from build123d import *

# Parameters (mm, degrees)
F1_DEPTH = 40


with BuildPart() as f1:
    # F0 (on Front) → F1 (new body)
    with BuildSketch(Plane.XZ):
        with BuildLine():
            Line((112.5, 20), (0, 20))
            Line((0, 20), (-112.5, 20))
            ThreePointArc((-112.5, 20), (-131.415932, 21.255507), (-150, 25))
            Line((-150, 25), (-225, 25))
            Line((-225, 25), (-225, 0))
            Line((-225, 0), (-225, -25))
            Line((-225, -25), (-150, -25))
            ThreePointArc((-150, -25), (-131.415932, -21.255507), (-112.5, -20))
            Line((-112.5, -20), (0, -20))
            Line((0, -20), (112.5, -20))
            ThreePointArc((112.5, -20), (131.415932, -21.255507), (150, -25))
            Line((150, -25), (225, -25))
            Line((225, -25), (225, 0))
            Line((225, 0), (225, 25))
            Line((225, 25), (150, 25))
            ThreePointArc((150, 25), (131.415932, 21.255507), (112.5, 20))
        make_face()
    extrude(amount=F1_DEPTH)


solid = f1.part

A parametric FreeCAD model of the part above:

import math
import FreeCAD as App
import Part
import Sketcher

doc = App.newDocument("Part")
body = doc.addObject("PartDesign::Body", "Body")

# Sketch on XZ plane
sketch1 = doc.addObject("Sketcher::SketchObject", "Sketch")
body.addObject(sketch1)
sketch1.AttachmentSupport = (doc.XZ_Plane, [""])
sketch1.MapMode = "FlatFace"
sketch1.addGeometry([
    Part.LineSegment(App.Vector(112.5, 20, 0), App.Vector(-112.5, 20, 0)),  # 0
    Part.ArcOfCircle(Part.Circle(App.Vector(-112.499995, 163.125038, 0), App.Vector(0, 0, 1), 143.125038), math.radians(-105.189285), math.radians(-90.000002)),  # 1
    Part.LineSegment(App.Vector(-150, 25, 0), App.Vector(-225, 25, 0)),  # 2
    Part.LineSegment(App.Vector(-225, 25, 0), App.Vector(-225, -25, 0)),  # 3
    Part.LineSegment(App.Vector(-225, -25, 0), App.Vector(-150, -25, 0)),  # 4
    Part.ArcOfCircle(Part.Circle(App.Vector(-112.499995, -163.125038, 0), App.Vector(0, 0, 1), 143.125038), math.radians(90.000002), math.radians(105.189285)),  # 5
    Part.LineSegment(App.Vector(-112.5, -20, 0), App.Vector(112.5, -20, 0)),  # 6
    Part.ArcOfCircle(Part.Circle(App.Vector(112.499995, -163.125038, 0), App.Vector(0, 0, 1), 143.125038), math.radians(74.810715), math.radians(89.999998)),  # 7
    Part.LineSegment(App.Vector(150, -25, 0), App.Vector(225, -25, 0)),  # 8
    Part.LineSegment(App.Vector(225, -25, 0), App.Vector(225, 25, 0)),  # 9
    Part.LineSegment(App.Vector(225, 25, 0), App.Vector(150, 25, 0)),  # 10
    Part.ArcOfCircle(Part.Circle(App.Vector(112.499995, 163.125038, 0), App.Vector(0, 0, 1), 143.125038), math.radians(-89.999998), math.radians(-74.810715)),  # 11
], False)
sketch1.addConstraint([
    Sketcher.Constraint("Tangent", 0, 2, 1, 2),
    Sketcher.Constraint("Coincident", 1, 1, 2, 1),
    Sketcher.Constraint("Coincident", 2, 2, 3, 1),
    Sketcher.Constraint("Coincident", 3, 2, 4, 1),
    Sketcher.Constraint("Coincident", 4, 2, 5, 2),
    Sketcher.Constraint("Tangent", 5, 1, 6, 1),
    Sketcher.Constraint("Tangent", 6, 2, 7, 2),
    Sketcher.Constraint("Coincident", 7, 1, 8, 1),
    Sketcher.Constraint("Coincident", 8, 2, 9, 1),
    Sketcher.Constraint("Coincident", 9, 2, 10, 1),
    Sketcher.Constraint("Coincident", 10, 2, 11, 2),
    Sketcher.Constraint("Tangent", 11, 1, 0, 1),
    Sketcher.Constraint("Horizontal", 0),
    Sketcher.Constraint("Horizontal", 2),
    Sketcher.Constraint("Vertical", 3),
    Sketcher.Constraint("Horizontal", 4),
    Sketcher.Constraint("Horizontal", 6),
    Sketcher.Constraint("Horizontal", 8),
    Sketcher.Constraint("Vertical", 9),
    Sketcher.Constraint("Horizontal", 10),
    Sketcher.Constraint("Equal", 1, 5),
    Sketcher.Constraint("Equal", 5, 7),
    Sketcher.Constraint("Equal", 7, 11),
    Sketcher.Constraint("Symmetric", 1, 3, 7, 3, -1, 1),
    Sketcher.Constraint("Symmetric", 2, 2, 8, 2, -1, 1),
    Sketcher.Constraint("Symmetric", 4, 2, 10, 2, -1, 1),
    Sketcher.Constraint("Symmetric", 4, 2, 7, 1, -2),
    Sketcher.Constraint("DistanceX", 0, 2, 0, 1, 225.0),
    Sketcher.Constraint("DistanceX", 2, 2, 2, 1, 75.0),
    Sketcher.Constraint("DistanceY", 3, 2, 3, 1, 50.0),
    Sketcher.Constraint("DistanceY", -1, 1, 0, 2, 20.0),
    Sketcher.Constraint("DistanceX", 2, 2, -1, 1, 225.0),
])
pad1 = doc.addObject("PartDesign::Pad", "Pad")
body.addObject(pad1)
pad1.Profile = sketch1
pad1.Length = 40

doc.recompute()
